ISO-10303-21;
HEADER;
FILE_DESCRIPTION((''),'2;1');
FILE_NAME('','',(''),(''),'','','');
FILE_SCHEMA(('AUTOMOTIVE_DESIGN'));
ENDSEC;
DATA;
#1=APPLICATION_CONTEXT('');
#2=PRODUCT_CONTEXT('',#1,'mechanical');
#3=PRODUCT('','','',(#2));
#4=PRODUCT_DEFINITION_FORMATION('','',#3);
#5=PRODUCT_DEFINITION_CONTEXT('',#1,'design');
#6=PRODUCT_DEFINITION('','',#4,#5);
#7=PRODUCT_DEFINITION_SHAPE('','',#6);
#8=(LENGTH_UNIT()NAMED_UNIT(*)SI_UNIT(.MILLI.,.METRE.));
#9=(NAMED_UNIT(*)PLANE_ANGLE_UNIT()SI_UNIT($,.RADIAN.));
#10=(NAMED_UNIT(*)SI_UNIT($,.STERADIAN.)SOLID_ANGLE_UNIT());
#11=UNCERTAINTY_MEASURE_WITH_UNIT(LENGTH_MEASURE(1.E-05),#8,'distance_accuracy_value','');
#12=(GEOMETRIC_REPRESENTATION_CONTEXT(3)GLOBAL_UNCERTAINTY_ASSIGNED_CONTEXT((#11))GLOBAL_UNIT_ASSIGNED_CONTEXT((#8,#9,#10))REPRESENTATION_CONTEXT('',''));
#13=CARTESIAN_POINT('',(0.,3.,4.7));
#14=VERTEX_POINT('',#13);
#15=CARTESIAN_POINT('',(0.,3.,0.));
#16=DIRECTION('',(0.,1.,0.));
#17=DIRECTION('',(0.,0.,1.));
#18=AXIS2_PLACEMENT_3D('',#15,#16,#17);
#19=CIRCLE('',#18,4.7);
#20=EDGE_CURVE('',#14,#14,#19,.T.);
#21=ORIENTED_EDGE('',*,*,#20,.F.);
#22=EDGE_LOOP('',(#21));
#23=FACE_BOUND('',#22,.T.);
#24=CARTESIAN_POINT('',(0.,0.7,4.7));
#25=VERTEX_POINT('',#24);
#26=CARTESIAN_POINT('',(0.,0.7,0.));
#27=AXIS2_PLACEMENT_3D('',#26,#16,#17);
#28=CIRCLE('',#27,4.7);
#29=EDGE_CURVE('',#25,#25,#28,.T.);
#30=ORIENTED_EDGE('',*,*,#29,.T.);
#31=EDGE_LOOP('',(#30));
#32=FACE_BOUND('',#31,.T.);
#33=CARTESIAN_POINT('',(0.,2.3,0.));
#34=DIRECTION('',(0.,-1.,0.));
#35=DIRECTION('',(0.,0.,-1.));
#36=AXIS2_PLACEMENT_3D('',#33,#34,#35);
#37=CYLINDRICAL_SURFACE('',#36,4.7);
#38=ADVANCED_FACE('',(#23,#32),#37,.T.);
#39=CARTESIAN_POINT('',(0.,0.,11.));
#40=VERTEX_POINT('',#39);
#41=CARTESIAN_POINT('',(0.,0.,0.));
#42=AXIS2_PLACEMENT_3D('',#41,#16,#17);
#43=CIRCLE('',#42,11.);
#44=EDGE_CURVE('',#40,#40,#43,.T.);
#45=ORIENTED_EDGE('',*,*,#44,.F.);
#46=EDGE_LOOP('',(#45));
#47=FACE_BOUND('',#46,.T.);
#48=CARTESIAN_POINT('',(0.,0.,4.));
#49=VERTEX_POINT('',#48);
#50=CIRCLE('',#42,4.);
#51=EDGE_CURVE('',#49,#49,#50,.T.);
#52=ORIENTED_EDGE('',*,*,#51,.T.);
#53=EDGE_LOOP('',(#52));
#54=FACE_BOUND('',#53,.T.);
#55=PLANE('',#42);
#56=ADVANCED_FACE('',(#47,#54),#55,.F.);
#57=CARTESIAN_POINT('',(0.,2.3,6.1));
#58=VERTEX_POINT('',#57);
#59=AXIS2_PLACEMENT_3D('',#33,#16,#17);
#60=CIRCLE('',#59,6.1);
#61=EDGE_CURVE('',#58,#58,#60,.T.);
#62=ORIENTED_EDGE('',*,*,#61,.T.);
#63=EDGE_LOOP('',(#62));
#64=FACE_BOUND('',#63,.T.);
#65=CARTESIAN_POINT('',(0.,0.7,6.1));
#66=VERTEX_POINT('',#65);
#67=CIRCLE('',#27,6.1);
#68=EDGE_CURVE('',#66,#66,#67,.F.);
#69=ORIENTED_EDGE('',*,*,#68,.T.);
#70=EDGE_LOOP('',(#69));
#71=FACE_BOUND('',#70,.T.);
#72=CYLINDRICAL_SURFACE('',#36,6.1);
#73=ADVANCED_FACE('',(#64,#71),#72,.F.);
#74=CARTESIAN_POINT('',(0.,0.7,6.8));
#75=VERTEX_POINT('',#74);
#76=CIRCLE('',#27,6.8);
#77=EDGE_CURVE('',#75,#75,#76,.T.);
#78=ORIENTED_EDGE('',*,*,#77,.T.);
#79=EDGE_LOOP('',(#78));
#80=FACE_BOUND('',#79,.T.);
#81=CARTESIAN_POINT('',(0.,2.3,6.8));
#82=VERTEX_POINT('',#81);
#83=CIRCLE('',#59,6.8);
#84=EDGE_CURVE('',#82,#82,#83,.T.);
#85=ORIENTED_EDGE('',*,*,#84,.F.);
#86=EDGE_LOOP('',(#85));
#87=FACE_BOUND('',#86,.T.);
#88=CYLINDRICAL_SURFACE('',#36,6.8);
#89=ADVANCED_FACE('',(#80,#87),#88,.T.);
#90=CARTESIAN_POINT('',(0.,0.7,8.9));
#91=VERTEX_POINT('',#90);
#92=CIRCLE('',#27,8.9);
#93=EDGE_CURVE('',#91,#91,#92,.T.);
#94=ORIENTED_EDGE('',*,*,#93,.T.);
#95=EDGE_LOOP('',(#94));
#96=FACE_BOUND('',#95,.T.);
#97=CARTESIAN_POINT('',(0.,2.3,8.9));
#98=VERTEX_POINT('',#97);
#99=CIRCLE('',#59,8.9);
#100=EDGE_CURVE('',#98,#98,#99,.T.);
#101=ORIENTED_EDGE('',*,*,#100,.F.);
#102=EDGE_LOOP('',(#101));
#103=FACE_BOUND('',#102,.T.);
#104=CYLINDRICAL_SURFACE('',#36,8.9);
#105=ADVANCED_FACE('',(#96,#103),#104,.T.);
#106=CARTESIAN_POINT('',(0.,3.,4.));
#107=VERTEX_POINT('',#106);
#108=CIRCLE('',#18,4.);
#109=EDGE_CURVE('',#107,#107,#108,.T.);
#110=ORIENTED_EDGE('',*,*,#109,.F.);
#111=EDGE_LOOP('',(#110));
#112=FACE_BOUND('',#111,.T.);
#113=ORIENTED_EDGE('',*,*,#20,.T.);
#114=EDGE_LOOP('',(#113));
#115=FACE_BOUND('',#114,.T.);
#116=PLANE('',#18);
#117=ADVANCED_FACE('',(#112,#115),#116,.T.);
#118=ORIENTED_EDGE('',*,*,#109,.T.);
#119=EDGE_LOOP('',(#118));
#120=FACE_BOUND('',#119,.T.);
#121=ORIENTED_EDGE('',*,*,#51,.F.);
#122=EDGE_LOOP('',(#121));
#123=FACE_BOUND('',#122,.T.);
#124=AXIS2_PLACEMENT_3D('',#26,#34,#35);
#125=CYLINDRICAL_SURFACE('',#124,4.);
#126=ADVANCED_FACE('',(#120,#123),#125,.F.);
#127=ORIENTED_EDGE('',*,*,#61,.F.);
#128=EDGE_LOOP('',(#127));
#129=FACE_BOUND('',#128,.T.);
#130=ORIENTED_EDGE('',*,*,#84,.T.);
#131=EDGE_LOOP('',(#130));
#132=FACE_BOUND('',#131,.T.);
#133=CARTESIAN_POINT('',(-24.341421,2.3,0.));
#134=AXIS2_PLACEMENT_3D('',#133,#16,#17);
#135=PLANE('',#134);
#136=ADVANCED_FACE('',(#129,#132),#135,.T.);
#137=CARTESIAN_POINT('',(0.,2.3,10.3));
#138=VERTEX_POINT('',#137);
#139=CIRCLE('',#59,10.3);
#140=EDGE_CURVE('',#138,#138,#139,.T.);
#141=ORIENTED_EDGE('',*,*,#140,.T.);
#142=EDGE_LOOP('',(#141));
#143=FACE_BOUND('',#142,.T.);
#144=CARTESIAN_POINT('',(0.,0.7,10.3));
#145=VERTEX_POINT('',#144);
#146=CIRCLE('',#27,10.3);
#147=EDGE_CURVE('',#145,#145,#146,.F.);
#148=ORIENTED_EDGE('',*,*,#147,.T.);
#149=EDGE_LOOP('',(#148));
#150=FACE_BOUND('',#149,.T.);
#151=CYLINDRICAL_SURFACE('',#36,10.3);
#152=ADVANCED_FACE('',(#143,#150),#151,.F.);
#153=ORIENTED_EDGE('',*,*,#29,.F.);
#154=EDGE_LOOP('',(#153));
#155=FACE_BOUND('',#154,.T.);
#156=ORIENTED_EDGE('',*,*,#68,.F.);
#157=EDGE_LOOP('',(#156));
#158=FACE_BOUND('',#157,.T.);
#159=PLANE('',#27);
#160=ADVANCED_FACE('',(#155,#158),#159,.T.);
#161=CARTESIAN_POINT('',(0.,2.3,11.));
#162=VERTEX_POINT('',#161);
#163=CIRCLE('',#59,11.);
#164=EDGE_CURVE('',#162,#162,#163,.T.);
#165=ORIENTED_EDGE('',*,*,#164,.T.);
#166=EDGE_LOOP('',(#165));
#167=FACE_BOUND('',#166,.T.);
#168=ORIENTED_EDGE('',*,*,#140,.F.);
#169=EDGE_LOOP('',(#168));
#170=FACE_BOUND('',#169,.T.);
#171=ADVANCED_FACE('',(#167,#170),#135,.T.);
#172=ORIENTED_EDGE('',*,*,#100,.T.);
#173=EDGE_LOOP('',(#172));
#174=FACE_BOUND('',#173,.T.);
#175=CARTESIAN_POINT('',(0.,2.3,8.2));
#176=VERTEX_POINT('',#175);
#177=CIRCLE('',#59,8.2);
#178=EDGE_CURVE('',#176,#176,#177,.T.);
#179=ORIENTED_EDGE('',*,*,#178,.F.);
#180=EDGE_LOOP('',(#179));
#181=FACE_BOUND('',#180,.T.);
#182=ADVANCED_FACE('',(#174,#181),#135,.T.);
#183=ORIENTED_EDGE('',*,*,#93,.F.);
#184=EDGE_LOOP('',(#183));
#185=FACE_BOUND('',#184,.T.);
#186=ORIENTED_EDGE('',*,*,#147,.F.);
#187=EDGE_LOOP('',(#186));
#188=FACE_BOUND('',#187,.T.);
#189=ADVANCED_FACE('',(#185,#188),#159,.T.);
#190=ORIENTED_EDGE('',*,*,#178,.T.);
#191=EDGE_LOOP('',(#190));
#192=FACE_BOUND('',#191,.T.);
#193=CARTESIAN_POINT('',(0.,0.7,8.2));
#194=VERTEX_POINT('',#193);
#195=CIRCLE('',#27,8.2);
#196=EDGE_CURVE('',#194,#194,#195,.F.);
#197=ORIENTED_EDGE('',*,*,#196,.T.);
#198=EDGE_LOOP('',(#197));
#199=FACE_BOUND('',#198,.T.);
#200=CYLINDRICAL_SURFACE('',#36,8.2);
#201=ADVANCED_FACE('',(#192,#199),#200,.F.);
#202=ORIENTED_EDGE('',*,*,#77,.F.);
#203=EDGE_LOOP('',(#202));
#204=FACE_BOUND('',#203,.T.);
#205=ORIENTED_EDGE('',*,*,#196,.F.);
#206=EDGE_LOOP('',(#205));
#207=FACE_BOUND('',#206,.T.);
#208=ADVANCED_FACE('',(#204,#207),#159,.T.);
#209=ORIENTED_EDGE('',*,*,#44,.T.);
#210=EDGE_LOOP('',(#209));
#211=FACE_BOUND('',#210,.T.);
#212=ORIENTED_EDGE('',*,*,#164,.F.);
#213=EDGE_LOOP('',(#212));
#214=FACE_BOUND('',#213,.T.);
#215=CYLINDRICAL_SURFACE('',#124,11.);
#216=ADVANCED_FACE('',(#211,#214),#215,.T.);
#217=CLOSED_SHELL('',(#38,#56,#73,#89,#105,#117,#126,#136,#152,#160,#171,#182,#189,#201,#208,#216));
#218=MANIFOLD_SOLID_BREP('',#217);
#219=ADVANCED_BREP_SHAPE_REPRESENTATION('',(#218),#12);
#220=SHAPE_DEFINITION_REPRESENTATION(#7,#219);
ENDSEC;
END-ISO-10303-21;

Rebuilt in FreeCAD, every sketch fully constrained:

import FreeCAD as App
import Part
import Sketcher
from FreeCAD import Vector
Q = App.Units.Quantity

doc = App.newDocument("Part")
params = doc.addObject("Spreadsheet::Sheet", "Params")
for row, (alias, value) in enumerate([
    ("sketch1_diameter", "22 mm"),
    ("sketch1_diameter2", "8 mm"),
    ("pad1_length", "0.7 mm"),
    ("sketch2_diameter", "22 mm"),
    ("sketch2_diameter2", "8 mm"),
    ("sketch2_diameter3", "20.6 mm"),
    ("sketch2_diameter4", "17.8 mm"),
    ("sketch2_diameter5", "16.4 mm"),
    ("pad2_length", "1.6 mm"),
    ("sketch3_diameter", "8 mm"),
    ("sketch3_diameter2", "9.4 mm"),
    ("pad3_length", "0.7 mm"),
], start=1):
    params.set(f"A{row}", alias)
    params.set(f"B{row}", "=" + value)
    params.setAlias(f"B{row}", alias)

body = doc.addObject("PartDesign::Body", "Body")

# Sketch on XZ plane
sketch1 = body.newObject("Sketcher::SketchObject", "Sketch")
sketch1.AttachmentSupport = (doc.getObject("XZ_Plane"), [""])
sketch1.MapMode = "FlatFace"
sketch1.addGeometry([
    Part.Circle(Vector(0, 0, 0), Vector(0, 0, 1), 11),
    Part.Circle(Vector(0, 0, 0), Vector(0, 0, 1), 4),
], False)
sketch1.addConstraint([
    Sketcher.Constraint("Coincident", 0, 3, -1, 1),
    Sketcher.Constraint("Coincident", 1, 3, -1, 1),
    Sketcher.Constraint("Diameter", 0, Q("22 mm")),
    Sketcher.Constraint("Diameter", 1, Q("8 mm")),
])
sketch1.setExpression("Constraints[2]", "Params.sketch1_diameter")
sketch1.setExpression("Constraints[3]", "Params.sketch1_diameter2")
pad1 = body.newObject("PartDesign::Pad", "Pad")
pad1.Profile = sketch1
pad1.setExpression("Length", "Params.pad1_length")
pad1.Reversed = True

# Sketch on XZ plane
sketch2 = body.newObject("Sketcher::SketchObject", "Sketch001")
sketch2.AttachmentSupport = (doc.getObject("XZ_Plane"), [""])
sketch2.MapMode = "FlatFace"
sketch2.AttachmentOffset = App.Placement(Vector(0, 0, -0.7), App.Rotation())
sketch2.addGeometry([
    Part.Circle(Vector(0, 0, 0), Vector(0, 0, 1), 11),  # 0
    Part.Circle(Vector(0, 0, 0), Vector(0, 0, 1), 10.3),  # 1
    Part.Circle(Vector(0, 0, 0), Vector(0, 0, 1), 8.9),  # 2
    Part.Circle(Vector(0, 0, 0), Vector(0, 0, 1), 8.2),  # 3
    Part.Circle(Vector(0, 0, 0), Vector(0, 0, 1), 6.8),  # 4
    Part.Circle(Vector(0, 0, 0), Vector(0, 0, 1), 6.1),  # 5
    Part.Circle(Vector(0, 0, 0), Vector(0, 0, 1), 4.7),  # 6
    Part.Circle(Vector(0, 0, 0), Vector(0, 0, 1), 4),  # 7
], False)
sketch2.addConstraint([
    Sketcher.Constraint("Coincident", 0, 3, -1, 1),
    Sketcher.Constraint("Coincident", 1, 3, -1, 1),
    Sketcher.Constraint("Coincident", 2, 3, -1, 1),
    Sketcher.Constraint("Coincident", 3, 3, -1, 1),
    Sketcher.Constraint("Coincident", 4, 3, -1, 1),
    Sketcher.Constraint("Coincident", 5, 3, -1, 1),
    Sketcher.Constraint("Coincident", 6, 3, -1, 1),
    Sketcher.Constraint("Coincident", 7, 3, -1, 1),
    Sketcher.Constraint("Diameter", 0, Q("22 mm")),
    Sketcher.Constraint("Diameter", 7, Q("8 mm")),
    Sketcher.Constraint("Diameter", 1, Q("20.6 mm")),
    Sketcher.Constraint("Diameter", 2, Q("17.8 mm")),
    Sketcher.Constraint("Diameter", 3, Q("16.4 mm")),
    Sketcher.Constraint("Diameter", 4, Q("13.6 mm")),
    Sketcher.Constraint("Diameter", 5, Q("12.2 mm")),
    Sketcher.Constraint("Diameter", 6, Q("9.4 mm")),
])
sketch2.setExpression("Constraints[8]", "Params.sketch2_diameter")
sketch2.setExpression("Constraints[9]", "Params.sketch2_diameter2")
sketch2.setExpression("Constraints[10]", "Params.sketch2_diameter3")
sketch2.setExpression("Constraints[11]", "Params.sketch2_diameter4")
sketch2.setExpression("Constraints[12]", "Params.sketch2_diameter5")
pad2 = body.newObject("PartDesign::Pad", "Pad001")
pad2.Profile = sketch2
pad2.setExpression("Length", "Params.pad2_length")
pad2.Reversed = True

# Sketch on XZ plane
sketch3 = body.newObject("Sketcher::SketchObject", "Sketch002")
sketch3.AttachmentSupport = (doc.getObject("XZ_Plane"), [""])
sketch3.MapMode = "FlatFace"
sketch3.AttachmentOffset = App.Placement(Vector(0, 0, -2.3), App.Rotation())
sketch3.addGeometry([
    Part.Circle(Vector(0, 0, 0), Vector(0, 0, 1), 4.7),
    Part.Circle(Vector(0, 0, 0), Vector(0, 0, 1), 4),
], False)
sketch3.addConstraint([
    Sketcher.Constraint("Coincident", 0, 3, -1, 1),
    Sketcher.Constraint("Coincident", 1, 3, -1, 1),
    Sketcher.Constraint("Diameter", 1, Q("8 mm")),
    Sketcher.Constraint("Diameter", 0, Q("9.4 mm")),
])
sketch3.setExpression("Constraints[2]", "Params.sketch3_diameter")
sketch3.setExpression("Constraints[3]", "Params.sketch3_diameter2")
pad3 = body.newObject("PartDesign::Pad", "Pad002")
pad3.Profile = sketch3
pad3.setExpression("Length", "Params.pad3_length")
pad3.Reversed = True

doc.recompute()
